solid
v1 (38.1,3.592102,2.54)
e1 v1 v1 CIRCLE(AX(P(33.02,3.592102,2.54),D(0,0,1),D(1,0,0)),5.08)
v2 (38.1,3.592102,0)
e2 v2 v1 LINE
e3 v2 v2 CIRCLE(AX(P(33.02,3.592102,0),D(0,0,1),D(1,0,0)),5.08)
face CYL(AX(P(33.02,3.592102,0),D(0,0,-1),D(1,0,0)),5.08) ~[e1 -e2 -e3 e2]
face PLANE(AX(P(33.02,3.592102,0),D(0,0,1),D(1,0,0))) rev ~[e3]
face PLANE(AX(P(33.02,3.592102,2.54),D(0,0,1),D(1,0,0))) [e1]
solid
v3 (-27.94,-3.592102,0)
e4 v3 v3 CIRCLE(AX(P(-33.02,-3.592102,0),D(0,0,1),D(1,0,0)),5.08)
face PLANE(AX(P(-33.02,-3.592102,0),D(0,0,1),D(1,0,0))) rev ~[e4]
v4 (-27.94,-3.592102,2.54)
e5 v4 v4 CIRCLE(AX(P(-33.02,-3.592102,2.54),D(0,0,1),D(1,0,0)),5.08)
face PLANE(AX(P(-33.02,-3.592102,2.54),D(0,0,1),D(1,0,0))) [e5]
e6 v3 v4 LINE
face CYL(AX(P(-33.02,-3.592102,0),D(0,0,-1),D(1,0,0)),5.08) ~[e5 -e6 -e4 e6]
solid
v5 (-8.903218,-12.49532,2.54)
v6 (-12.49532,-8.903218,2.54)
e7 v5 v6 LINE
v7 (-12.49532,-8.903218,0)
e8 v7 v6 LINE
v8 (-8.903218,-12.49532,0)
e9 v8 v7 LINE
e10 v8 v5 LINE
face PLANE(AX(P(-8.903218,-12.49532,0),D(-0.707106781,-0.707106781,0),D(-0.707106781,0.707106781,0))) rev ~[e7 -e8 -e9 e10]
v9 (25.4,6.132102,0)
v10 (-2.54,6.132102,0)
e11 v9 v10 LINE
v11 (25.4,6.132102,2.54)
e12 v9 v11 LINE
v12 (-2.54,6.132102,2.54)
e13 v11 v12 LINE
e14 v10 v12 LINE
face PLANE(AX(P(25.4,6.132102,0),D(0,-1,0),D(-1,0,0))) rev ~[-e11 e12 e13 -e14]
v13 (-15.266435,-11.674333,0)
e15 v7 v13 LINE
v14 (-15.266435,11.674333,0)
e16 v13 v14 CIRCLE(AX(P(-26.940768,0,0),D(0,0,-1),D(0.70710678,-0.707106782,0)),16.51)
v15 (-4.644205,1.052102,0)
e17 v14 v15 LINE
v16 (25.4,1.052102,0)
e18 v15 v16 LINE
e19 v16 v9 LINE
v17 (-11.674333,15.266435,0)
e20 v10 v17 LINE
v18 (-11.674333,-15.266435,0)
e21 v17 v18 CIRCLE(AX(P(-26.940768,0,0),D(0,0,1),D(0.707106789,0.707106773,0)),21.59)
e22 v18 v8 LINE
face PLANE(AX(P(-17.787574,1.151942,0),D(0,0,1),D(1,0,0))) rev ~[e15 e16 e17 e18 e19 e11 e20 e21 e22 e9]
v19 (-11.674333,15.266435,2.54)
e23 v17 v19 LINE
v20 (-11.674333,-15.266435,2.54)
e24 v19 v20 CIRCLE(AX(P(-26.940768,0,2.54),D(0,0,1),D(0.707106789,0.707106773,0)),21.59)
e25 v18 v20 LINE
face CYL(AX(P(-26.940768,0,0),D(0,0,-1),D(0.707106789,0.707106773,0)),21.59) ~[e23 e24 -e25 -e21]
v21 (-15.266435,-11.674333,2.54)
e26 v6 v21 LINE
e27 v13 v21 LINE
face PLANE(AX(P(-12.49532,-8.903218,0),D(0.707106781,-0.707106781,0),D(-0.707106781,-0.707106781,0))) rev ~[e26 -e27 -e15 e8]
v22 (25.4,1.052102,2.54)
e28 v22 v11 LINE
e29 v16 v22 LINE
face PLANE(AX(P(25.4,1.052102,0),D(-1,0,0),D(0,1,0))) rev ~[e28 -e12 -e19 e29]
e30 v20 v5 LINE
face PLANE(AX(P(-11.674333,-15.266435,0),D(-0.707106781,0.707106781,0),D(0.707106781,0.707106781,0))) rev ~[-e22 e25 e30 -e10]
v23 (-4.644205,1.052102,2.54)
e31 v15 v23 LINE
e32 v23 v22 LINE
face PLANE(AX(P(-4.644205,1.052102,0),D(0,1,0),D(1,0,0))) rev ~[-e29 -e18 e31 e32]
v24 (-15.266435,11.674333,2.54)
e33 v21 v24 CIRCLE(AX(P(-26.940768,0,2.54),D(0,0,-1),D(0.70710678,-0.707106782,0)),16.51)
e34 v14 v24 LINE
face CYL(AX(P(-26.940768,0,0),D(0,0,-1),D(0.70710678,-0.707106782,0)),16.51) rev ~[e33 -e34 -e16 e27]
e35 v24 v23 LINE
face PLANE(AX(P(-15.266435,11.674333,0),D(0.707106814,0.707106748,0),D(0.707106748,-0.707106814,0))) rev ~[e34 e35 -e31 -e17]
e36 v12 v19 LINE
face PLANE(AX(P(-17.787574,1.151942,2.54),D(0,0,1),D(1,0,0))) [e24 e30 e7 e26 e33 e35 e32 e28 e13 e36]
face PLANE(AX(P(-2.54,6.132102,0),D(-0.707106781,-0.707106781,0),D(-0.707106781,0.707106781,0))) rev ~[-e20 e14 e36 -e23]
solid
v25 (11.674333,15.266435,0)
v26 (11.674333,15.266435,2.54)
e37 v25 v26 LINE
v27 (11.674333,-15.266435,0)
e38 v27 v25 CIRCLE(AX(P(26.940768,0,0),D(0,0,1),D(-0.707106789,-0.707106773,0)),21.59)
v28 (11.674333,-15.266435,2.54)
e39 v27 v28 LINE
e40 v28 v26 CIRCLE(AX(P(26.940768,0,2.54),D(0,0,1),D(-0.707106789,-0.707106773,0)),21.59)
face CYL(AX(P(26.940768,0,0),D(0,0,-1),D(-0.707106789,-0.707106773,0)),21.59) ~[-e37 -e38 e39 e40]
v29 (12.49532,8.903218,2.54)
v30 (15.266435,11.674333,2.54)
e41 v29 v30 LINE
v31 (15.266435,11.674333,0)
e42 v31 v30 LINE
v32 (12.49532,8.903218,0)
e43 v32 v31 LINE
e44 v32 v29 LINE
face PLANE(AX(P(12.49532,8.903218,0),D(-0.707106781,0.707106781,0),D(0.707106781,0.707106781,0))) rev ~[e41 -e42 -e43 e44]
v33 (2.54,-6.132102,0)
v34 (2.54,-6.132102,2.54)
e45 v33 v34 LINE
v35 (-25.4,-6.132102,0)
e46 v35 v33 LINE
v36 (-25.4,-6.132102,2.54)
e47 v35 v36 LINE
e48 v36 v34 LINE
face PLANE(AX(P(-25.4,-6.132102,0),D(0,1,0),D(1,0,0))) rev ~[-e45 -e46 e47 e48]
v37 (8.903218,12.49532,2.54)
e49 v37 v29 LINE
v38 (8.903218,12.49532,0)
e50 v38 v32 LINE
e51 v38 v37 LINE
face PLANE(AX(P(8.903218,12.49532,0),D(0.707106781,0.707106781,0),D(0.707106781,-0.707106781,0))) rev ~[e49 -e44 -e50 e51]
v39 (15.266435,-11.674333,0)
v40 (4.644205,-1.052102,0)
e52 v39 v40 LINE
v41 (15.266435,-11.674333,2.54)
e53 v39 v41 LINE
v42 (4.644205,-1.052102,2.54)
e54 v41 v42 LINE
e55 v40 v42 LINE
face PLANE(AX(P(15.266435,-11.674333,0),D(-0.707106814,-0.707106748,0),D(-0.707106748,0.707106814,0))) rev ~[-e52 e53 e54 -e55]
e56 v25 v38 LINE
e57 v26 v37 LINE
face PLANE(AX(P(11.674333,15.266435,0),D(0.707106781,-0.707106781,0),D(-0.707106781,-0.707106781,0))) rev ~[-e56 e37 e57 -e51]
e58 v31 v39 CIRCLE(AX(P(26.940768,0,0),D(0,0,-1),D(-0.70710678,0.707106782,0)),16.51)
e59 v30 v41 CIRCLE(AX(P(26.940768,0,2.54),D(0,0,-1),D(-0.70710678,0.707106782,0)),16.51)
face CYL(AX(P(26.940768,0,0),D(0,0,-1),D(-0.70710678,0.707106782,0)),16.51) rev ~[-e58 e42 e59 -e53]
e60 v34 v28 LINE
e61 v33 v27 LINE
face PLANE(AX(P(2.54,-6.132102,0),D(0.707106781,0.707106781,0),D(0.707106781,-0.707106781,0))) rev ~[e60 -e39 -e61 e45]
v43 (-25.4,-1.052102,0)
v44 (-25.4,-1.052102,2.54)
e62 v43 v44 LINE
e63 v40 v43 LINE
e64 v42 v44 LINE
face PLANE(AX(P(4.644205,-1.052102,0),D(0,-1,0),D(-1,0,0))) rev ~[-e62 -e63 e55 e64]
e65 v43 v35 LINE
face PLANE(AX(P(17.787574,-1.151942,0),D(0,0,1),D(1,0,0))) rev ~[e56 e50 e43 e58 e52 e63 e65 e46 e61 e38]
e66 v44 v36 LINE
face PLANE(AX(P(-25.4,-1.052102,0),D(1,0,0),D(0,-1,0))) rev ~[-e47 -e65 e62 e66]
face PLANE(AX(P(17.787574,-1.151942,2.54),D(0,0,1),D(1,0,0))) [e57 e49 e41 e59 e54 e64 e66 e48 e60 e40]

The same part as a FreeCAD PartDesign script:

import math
import FreeCAD as App
import Part
import Sketcher
from FreeCAD import Vector
Q = App.Units.Quantity

doc = App.newDocument("Part")
body = doc.addObject("PartDesign::Body", "Body")
body.AllowCompound = True

sketch1 = doc.addObject("Sketcher::SketchObject", "Sketch")
body.addObject(sketch1)
sketch1.AttachmentSupport = (doc.XY_Plane, [""])
sketch1.MapMode = "FlatFace"
sketch1.addGeometry([
    Part.LineSegment(Vector(-2.54, 6.132102, 0), Vector(-11.674333, 15.266435, 0)),
    Part.ArcOfCircle(Part.Circle(Vector(-26.940768, 0, 0), Vector(0, 0, 1), 21.59), math.radians(44.999999), math.radians(315.000001)),
    Part.LineSegment(Vector(-11.674333, -15.266435, 0), Vector(-8.903218, -12.49532, 0)),
    Part.LineSegment(Vector(-8.903218, -12.49532, 0), Vector(-12.49532, -8.903218, 0)),
    Part.LineSegment(Vector(-12.49532, -8.903218, 0), Vector(-15.266435, -11.674333, 0)),
    Part.ArcOfCircle(Part.Circle(Vector(-26.940768, 0, 0), Vector(0, 0, 1), 16.51), math.radians(45), math.radians(315)),
    Part.LineSegment(Vector(-15.266435, 11.674333, 0), Vector(-4.644205, 1.052102, 0)),
    Part.LineSegment(Vector(-4.644205, 1.052102, 0), Vector(25.4, 1.052102, 0)),
    Part.LineSegment(Vector(25.4, 1.052102, 0), Vector(25.4, 6.132102, 0)),
    Part.LineSegment(Vector(25.4, 6.132102, 0), Vector(-2.54, 6.132102, 0)),
    Part.LineSegment(Vector(12.49532, 8.903218, 0), Vector(15.266435, 11.674333, 0)),
    Part.ArcOfCircle(Part.Circle(Vector(26.940768, 0, 0), Vector(0, 0, 1), 16.51), math.radians(-135), math.radians(135)),
    Part.LineSegment(Vector(15.266435, -11.674333, 0), Vector(4.644205, -1.052102, 0)),
    Part.LineSegment(Vector(4.644205, -1.052102, 0), Vector(-25.4, -1.052102, 0)),
    Part.LineSegment(Vector(-25.4, -1.052102, 0), Vector(-25.4, -6.132102, 0)),
    Part.LineSegment(Vector(-25.4, -6.132102, 0), Vector(2.54, -6.132102, 0)),
    Part.LineSegment(Vector(2.54, -6.132102, 0), Vector(11.674333, -15.266435, 0)),
    Part.ArcOfCircle(Part.Circle(Vector(26.940768, 0, 0), Vector(0, 0, 1), 21.59), math.radians(-135.000001), math.radians(135.000001)),
    Part.LineSegment(Vector(11.674333, 15.266435, 0), Vector(8.903218, 12.49532, 0)),
    Part.LineSegment(Vector(8.903218, 12.49532, 0), Vector(12.49532, 8.903218, 0)),
    Part.Circle(Vector(33.02, 3.592102, 0), Vector(0, 0, 1), 5.08),
    Part.Circle(Vector(-33.02, -3.592102, 0), Vector(0, 0, 1), 5.08),
], False)
sketch1.addConstraint([
    Sketcher.Constraint("Tangent", 0, 2, 1, 1),
    Sketcher.Constraint("Tangent", 1, 2, 2, 1),
    Sketcher.Constraint("Coincident", 2, 2, 3, 1),
    Sketcher.Constraint("Coincident", 3, 2, 4, 1),
    Sketcher.Constraint("Tangent", 4, 2, 5, 2),
    Sketcher.Constraint("Tangent", 5, 1, 6, 1),
    Sketcher.Constraint("Coincident", 6, 2, 7, 1),
    Sketcher.Constraint("Coincident", 7, 2, 8, 1),
    Sketcher.Constraint("Coincident", 8, 2, 9, 1),
    Sketcher.Constraint("Coincident", 9, 2, 0, 1),
    Sketcher.Constraint("Tangent", 10, 2, 11, 2),
    Sketcher.Constraint("Tangent", 11, 1, 12, 1),
    Sketcher.Constraint("Coincident", 12, 2, 13, 1),
    Sketcher.Constraint("Coincident", 13, 2, 14, 1),
    Sketcher.Constraint("Coincident", 14, 2, 15, 1),
    Sketcher.Constraint("Coincident", 15, 2, 16, 1),
    Sketcher.Constraint("Tangent", 16, 2, 17, 1),
    Sketcher.Constraint("Tangent", 17, 2, 18, 1),
    Sketcher.Constraint("Coincident", 18, 2, 19, 1),
    Sketcher.Constraint("Coincident", 19, 2, 10, 1),
    Sketcher.Constraint("Horizontal", 7),
    Sketcher.Constraint("Vertical", 8),
    Sketcher.Constraint("Horizontal", 9),
    Sketcher.Constraint("Horizontal", 13),
    Sketcher.Constraint("Vertical", 14),
    Sketcher.Constraint("Horizontal", 15),
    Sketcher.Constraint("Coincident", 5, 3, 1, 3),
    Sketcher.Constraint("Coincident", 17, 3, 11, 3),
    Sketcher.Constraint("Equal", 5, 11),
    Sketcher.Constraint("Equal", 1, 17),
    Sketcher.Constraint("Equal", 20, 21),
    Sketcher.Constraint("Symmetric", 1, 3, 11, 3, -1, 1),
    Sketcher.Constraint("Symmetric", 20, 3, 21, 3, -1, 1),
    Sketcher.Constraint("Symmetric", 6, 2, 12, 2, -1, 1),
    Sketcher.Constraint("Symmetric", 8, 2, 14, 2, -1, 1),
    Sketcher.Constraint("Symmetric", 2, 2, 18, 2, -1, 1),
    Sketcher.Constraint("Symmetric", 3, 2, 19, 2, -1, 1),
    Sketcher.Constraint("Symmetric", 5, 1, 10, 2, -2),
    Sketcher.Constraint("Perpendicular", 0, 2),
    Sketcher.Constraint("Perpendicular", 2, 3),
    Sketcher.Constraint("Perpendicular", 3, 4),
    Sketcher.Constraint("Perpendicular", 4, 6),
    Sketcher.Constraint("Parallel", 12, 16),
    Sketcher.Constraint("Diameter", 20, Q("0.4 in")),
    Sketcher.Constraint("Radius", 1, Q("0.85 in")),
    Sketcher.Constraint("Radius", 5, Q("0.65 in")),
    Sketcher.Constraint("DistanceX", 9, 2, 9, 1, Q("1.1 in")),
    Sketcher.Constraint("DistanceY", 8, 1, 8, 2, Q("0.2 in")),
    Sketcher.Constraint("DistanceX", -1, 1, 7, 2, Q("1 in")),
    Sketcher.Constraint("DistanceX", -1, 1, 20, 3, Q("1.3 in")),
    Sketcher.Constraint("DistanceY", 7, 2, 20, 3, Q("0.1 in")),
    Sketcher.Constraint("DistanceY", -1, 1, 8, 2, 6.132102),
    Sketcher.Constraint("Distance", 2, 3.918948),
])
pad1 = doc.addObject("PartDesign::Pad", "Pad")
body.addObject(pad1)
pad1.Profile = sketch1
pad1.Length = Q("0.1 in")

doc.recompute()
